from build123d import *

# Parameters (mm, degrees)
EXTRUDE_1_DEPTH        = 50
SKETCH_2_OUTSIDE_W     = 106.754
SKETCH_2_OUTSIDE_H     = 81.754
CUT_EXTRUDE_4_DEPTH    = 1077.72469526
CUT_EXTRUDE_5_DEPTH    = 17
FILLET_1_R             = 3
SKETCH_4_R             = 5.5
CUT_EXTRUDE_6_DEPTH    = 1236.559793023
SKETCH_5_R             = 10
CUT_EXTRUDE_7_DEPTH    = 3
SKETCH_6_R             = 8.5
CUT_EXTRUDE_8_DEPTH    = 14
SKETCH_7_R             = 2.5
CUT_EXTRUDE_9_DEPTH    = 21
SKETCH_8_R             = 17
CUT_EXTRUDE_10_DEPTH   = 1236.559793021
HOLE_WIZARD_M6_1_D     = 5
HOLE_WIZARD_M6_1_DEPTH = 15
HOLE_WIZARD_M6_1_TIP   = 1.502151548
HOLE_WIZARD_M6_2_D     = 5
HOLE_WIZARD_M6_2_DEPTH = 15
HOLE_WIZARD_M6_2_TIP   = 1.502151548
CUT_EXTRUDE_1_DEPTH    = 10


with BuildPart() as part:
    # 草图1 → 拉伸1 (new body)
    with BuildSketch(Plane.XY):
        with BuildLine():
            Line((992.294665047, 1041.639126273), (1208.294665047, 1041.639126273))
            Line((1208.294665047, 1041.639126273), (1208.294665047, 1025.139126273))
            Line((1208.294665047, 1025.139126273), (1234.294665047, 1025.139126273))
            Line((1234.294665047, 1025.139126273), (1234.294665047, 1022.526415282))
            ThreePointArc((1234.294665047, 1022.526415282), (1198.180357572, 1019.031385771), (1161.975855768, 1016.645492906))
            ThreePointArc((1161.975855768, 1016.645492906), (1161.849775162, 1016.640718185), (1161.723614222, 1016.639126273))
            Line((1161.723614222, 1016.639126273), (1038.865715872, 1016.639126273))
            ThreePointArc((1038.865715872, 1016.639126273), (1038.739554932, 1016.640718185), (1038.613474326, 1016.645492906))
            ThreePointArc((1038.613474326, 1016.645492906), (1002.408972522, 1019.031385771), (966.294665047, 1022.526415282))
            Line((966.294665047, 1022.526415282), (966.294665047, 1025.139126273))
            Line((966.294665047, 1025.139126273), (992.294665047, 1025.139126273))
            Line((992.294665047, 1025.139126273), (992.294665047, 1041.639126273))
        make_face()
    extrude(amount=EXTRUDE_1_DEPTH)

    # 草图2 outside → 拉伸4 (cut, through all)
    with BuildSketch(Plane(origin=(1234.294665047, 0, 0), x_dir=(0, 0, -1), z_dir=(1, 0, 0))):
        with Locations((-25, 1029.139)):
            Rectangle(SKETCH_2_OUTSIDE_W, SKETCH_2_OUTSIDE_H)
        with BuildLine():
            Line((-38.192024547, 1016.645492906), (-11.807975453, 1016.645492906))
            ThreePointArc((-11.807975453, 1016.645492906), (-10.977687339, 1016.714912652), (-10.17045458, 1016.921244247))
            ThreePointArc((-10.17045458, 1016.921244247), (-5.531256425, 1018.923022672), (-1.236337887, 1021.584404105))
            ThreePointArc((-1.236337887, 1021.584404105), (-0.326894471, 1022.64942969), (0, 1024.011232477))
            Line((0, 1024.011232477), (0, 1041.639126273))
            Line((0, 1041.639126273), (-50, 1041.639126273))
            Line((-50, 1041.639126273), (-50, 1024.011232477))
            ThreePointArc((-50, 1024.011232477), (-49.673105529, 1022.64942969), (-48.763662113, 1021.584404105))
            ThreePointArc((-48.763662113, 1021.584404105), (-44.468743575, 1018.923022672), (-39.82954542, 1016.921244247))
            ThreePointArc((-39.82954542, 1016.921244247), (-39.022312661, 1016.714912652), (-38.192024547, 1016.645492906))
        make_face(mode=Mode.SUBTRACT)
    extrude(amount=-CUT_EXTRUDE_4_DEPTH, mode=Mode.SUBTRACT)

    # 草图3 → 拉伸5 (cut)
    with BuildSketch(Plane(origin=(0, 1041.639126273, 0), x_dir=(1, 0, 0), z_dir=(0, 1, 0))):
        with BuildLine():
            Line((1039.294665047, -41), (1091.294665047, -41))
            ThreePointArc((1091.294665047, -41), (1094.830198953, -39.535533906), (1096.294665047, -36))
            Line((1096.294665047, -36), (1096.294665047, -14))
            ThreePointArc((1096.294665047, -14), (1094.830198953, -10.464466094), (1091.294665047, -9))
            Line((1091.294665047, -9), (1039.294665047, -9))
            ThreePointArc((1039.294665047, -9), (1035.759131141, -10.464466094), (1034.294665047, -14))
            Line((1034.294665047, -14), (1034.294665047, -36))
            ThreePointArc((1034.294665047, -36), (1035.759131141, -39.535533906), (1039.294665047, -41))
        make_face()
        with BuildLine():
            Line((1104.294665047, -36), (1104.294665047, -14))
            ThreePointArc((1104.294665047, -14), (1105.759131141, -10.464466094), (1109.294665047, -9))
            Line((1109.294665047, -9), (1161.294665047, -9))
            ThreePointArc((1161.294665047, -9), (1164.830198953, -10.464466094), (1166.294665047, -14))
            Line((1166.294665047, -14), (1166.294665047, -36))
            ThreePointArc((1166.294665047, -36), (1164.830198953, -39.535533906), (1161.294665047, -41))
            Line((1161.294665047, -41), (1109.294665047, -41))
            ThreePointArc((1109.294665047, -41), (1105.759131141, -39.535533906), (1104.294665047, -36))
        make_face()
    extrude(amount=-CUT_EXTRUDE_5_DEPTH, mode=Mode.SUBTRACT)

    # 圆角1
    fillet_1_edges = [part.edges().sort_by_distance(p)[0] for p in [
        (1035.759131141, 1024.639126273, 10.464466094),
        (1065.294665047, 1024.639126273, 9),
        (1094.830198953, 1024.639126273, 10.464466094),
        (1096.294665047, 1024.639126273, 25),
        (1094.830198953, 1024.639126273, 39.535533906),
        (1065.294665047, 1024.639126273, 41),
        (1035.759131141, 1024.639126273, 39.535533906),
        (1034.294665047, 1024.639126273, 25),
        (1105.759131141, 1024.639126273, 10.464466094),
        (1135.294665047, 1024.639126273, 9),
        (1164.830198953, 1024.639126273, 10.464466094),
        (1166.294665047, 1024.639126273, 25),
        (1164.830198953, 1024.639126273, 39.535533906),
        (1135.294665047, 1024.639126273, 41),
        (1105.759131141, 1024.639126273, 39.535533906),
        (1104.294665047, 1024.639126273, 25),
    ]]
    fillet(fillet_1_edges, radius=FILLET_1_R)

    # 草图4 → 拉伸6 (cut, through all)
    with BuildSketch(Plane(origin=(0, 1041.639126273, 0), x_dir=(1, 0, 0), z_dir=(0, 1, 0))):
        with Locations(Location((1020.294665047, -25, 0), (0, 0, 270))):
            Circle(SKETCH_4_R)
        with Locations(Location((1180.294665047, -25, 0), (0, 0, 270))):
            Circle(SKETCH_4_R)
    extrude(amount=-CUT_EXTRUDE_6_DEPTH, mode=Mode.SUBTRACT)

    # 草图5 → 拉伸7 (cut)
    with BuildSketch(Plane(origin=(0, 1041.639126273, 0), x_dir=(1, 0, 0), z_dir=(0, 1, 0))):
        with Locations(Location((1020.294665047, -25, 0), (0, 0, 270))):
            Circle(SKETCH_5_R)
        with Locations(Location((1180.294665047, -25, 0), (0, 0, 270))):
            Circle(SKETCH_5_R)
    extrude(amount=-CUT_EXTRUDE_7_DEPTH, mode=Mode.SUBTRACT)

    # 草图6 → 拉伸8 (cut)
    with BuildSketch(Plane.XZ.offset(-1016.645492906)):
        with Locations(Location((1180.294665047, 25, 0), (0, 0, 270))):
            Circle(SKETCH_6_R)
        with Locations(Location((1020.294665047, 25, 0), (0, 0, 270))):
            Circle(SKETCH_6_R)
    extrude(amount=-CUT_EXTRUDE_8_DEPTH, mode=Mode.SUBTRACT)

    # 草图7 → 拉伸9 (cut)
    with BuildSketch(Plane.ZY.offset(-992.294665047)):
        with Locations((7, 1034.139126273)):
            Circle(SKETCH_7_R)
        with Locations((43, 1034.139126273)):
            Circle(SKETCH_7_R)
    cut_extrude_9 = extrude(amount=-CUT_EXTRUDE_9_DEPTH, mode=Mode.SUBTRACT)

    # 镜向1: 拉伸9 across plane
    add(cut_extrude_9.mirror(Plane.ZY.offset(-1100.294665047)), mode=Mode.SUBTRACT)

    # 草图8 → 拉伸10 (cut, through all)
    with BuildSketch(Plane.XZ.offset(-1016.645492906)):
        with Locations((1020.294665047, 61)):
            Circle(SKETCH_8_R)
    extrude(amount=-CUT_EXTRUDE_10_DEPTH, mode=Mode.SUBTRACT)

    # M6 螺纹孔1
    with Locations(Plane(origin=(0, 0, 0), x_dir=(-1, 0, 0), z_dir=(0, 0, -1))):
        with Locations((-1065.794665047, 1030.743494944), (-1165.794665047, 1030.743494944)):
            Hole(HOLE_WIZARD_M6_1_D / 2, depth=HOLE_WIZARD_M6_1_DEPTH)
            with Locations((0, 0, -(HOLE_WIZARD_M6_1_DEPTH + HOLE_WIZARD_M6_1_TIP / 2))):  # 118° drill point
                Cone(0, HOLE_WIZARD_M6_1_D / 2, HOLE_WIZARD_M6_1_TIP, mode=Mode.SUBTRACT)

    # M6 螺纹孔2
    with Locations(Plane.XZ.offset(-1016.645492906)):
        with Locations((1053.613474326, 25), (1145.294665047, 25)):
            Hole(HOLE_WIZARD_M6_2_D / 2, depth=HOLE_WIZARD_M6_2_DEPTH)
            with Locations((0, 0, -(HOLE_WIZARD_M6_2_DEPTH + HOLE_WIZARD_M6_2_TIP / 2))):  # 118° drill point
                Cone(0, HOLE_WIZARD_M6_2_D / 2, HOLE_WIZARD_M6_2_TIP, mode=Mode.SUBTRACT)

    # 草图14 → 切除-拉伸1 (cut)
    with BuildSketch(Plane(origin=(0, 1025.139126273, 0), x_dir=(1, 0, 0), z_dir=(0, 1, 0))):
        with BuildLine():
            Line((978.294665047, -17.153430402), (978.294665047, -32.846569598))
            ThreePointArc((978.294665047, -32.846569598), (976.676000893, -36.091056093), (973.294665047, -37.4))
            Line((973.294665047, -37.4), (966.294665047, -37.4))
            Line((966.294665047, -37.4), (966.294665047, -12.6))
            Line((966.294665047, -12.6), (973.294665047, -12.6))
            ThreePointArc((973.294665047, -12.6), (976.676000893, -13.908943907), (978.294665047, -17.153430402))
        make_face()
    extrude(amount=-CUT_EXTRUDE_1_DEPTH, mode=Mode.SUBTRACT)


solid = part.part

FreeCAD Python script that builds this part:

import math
import FreeCAD as App
import Part
import Sketcher

V = App.Vector
Q = App.Units.Quantity


def edges_at(feature, points):
    """Names of the edges that pass closest to the given points."""
    edges = feature.Shape.Edges
    near = lambda p: min(range(len(edges)), key=lambda i: edges[i].distToShape(Part.Vertex(*p))[0])
    return sorted({f"Edge{near(p) + 1}" for p in points})

doc = App.newDocument("Part")
body = doc.addObject("PartDesign::Body", "Body")

sketch1 = body.newObject("Sketcher::SketchObject", "Sketch")
sketch1.AttachmentSupport = (doc.getObject("XY_Plane"), [""])
sketch1.MapMode = "FlatFace"
sketch1.addGeometry(Part.LineSegment(V(1208.29, 1041.64, 0), V(992.29, 1041.64, 0)), False)
sketch1.addGeometry(Part.LineSegment(V(992.29, 1041.64, 0), V(992.29, 1025.14, 0)), False)
sketch1.addGeometry(Part.LineSegment(V(992.29, 1025.14, 0), V(966.29, 1025.14, 0)), False)
sketch1.addGeometry(Part.LineSegment(V(966.29, 1025.14, 0), V(966.29, 1022.53, 0)), False)
sketch1.addGeometry(Part.ArcOfCircle(Part.Circle(V(1098.29, 2198.16, 0), V(0, 0, 1), 1183.02), math.radians(-96.41), math.radians(-92.89)), False)
sketch1.addGeometry(Part.ArcOfCircle(Part.Circle(V(1038.87, 1021.64, 0), V(0, 0, 1), 5), math.radians(-92.89), math.radians(-90)), False)
sketch1.addGeometry(Part.LineSegment(V(1038.87, 1016.64, 0), V(1161.72, 1016.64, 0)), False)
sketch1.addGeometry(Part.ArcOfCircle(Part.Circle(V(1161.72, 1021.64, 0), V(0, 0, 1), 5), math.radians(-90), math.radians(-87.11)), False)
sketch1.addGeometry(Part.ArcOfCircle(Part.Circle(V(1102.29, 2198.16, 0), V(0, 0, 1), 1183.02), math.radians(-87.11), math.radians(-83.59)), False)
sketch1.addGeometry(Part.LineSegment(V(1234.29, 1022.53, 0), V(1234.29, 1025.14, 0)), False)
sketch1.addGeometry(Part.LineSegment(V(1234.29, 1025.14, 0), V(1208.29, 1025.14, 0)), False)
sketch1.addGeometry(Part.LineSegment(V(1208.29, 1025.14, 0), V(1208.29, 1041.64, 0)), False)
sketch1.addConstraint(Sketcher.Constraint("Coincident", 0, 2, 1, 1))
sketch1.addConstraint(Sketcher.Constraint("Coincident", 1, 2, 2, 1))
sketch1.addConstraint(Sketcher.Constraint("Coincident", 2, 2, 3, 1))
sketch1.addConstraint(Sketcher.Constraint("Coincident", 3, 2, 4, 1))
sketch1.addConstraint(Sketcher.Constraint("Tangent", 4, 2, 5, 1))
sketch1.addConstraint(Sketcher.Constraint("Tangent", 5, 2, 6, 1))
sketch1.addConstraint(Sketcher.Constraint("Tangent", 6, 2, 7, 1))
sketch1.addConstraint(Sketcher.Constraint("Tangent", 7, 2, 8, 1))
sketch1.addConstraint(Sketcher.Constraint("Coincident", 8, 2, 9, 1))
sketch1.addConstraint(Sketcher.Constraint("Coincident", 9, 2, 10, 1))
sketch1.addConstraint(Sketcher.Constraint("Coincident", 10, 2, 11, 1))
sketch1.addConstraint(Sketcher.Constraint("Coincident", 11, 2, 0, 1))
sketch1.addConstraint(Sketcher.Constraint("Horizontal", 0))
sketch1.addConstraint(Sketcher.Constraint("Vertical", 1))
sketch1.addConstraint(Sketcher.Constraint("Horizontal", 2))
sketch1.addConstraint(Sketcher.Constraint("Vertical", 3))
sketch1.addConstraint(Sketcher.Constraint("Horizontal", 6))
sketch1.addConstraint(Sketcher.Constraint("Vertical", 9))
sketch1.addConstraint(Sketcher.Constraint("Horizontal", 10))
sketch1.addConstraint(Sketcher.Constraint("Vertical", 11))
sketch1.addConstraint(Sketcher.Constraint("Equal", 5, 7))
sketch1.addConstraint(Sketcher.Constraint("Equal", 4, 8))
sketch1.addConstraint(Sketcher.Constraint("Horizontal", 4, 3, 8, 3))
sketch1.addConstraint(Sketcher.Constraint("Horizontal", 2, 2, 9, 2))
sketch1.addConstraint(Sketcher.Constraint("Equal", 2, 10))
sketch1.addConstraint(Sketcher.Constraint("Equal", 3, 9))
sketch1.addConstraint(Sketcher.Constraint("Radius", 5, Q("5.000001 mm")))
sketch1.addConstraint(Sketcher.Constraint("DistanceX", 0, 2, 0, 1, Q("216 mm")))
sketch1.addConstraint(Sketcher.Constraint("DistanceX", 2, 2, 2, 1, Q("26 mm")))
sketch1.addConstraint(Sketcher.Constraint("DistanceY", 1, 2, 1, 1, Q("16.5 mm")))
sketch1.addConstraint(Sketcher.Constraint("DistanceX", 4, 3, 8, 3, Q("4 mm")))
sketch1.addConstraint(Sketcher.Constraint("DistanceY", 5, 3, 0, 2, Q("19.999999 mm")))
sketch1.addConstraint(Sketcher.Constraint("DistanceX", 6, 1, 6, 2, Q("122.857898 mm")))
sketch1.addConstraint(Sketcher.Constraint("Radius", 4, Q("1183.016666 mm")))
sketch1.addConstraint(Sketcher.Constraint("DistanceX", -1, 1, 4, 3, Q("1098.294665 mm")))
sketch1.addConstraint(Sketcher.Constraint("DistanceY", -1, 1, 4, 3, Q("2198.155793 mm")))
pad1 = body.newObject("PartDesign::Pad", "Pad")
pad1.Profile = sketch1
pad1.Length = 50

sketch2 = body.newObject("Sketcher::SketchObject", "Sketch001")
sketch2.AttachmentSupport = (doc.getObject("YZ_Plane"), [""])
sketch2.MapMode = "FlatFace"
sketch2.AttachmentOffset = App.Placement(V(0, 0, 1234.294665), App.Rotation())
sketch2.addGeometry(Part.LineSegment(V(1070, 78.4, 0), V(988.3, 78.4, 0)), False)
sketch2.addGeometry(Part.LineSegment(V(988.3, 78.4, 0), V(988.3, -28.4, 0)), False)
sketch2.addGeometry(Part.LineSegment(V(988.3, -28.4, 0), V(1070, -28.4, 0)), False)
sketch2.addGeometry(Part.LineSegment(V(1070, -28.4, 0), V(1070, 78.4, 0)), False)
sketch2.addGeometry(Part.LineSegment(V(1016.6, 11.8, 0), V(1016.6, 38.2, 0)), False)
sketch2.addGeometry(Part.ArcOfCircle(Part.Circle(V(1021.6, 38.2, 0), V(0, 0, 1), 5), math.radians(160.88), math.radians(180)), False)
sketch2.addGeometry(Part.ArcOfCircle(Part.Circle(V(1049.3, 28.6, 0), V(0, 0, 1), 34.3), math.radians(143.99), math.radians(160.88)), False)
sketch2.addGeometry(Part.ArcOfCircle(Part.Circle(V(1024, 47, 0), V(0, 0, 1), 3), math.radians(90), math.radians(144)), False)
sketch2.addGeometry(Part.LineSegment(V(1024, 50, 0), V(1041.6, 50, 0)), False)
sketch2.addGeometry(Part.LineSegment(V(1041.6, 50, 0), V(1041.6, 0, 0)), False)
sketch2.addGeometry(Part.LineSegment(V(1041.6, 0, 0), V(1024, 0, 0)), False)
sketch2.addGeometry(Part.ArcOfCircle(Part.Circle(V(1024, 3, 0), V(0, 0, 1), 3), math.radians(-144), math.radians(-90)), False)
sketch2.addGeometry(Part.ArcOfCircle(Part.Circle(V(1049.3, 21.4, 0), V(0, 0, 1), 34.3), math.radians(-160.88), math.radians(-143.99)), False)
sketch2.addGeometry(Part.ArcOfCircle(Part.Circle(V(1021.6, 11.8, 0), V(0, 0, 1), 5), math.radians(-180), math.radians(-160.88)), False)
sketch2.addConstraint(Sketcher.Constraint("Coincident", 0, 2, 1, 1))
sketch2.addConstraint(Sketcher.Constraint("Coincident", 1, 2, 2, 1))
sketch2.addConstraint(Sketcher.Constraint("Coincident", 2, 2, 3, 1))
sketch2.addConstraint(Sketcher.Constraint("Coincident", 3, 2, 0, 1))
sketch2.addConstraint(Sketcher.Constraint("Tangent", 4, 2, 5, 2))
sketch2.addConstraint(Sketcher.Constraint("Tangent", 5, 1, 6, 2))
sketch2.addConstraint(Sketcher.Constraint("Tangent", 6, 1, 7, 2))
sketch2.addConstraint(Sketcher.Constraint("Tangent", 7, 1, 8, 1))
sketch2.addConstraint(Sketcher.Constraint("Coincident", 8, 2, 9, 1))
sketch2.addConstraint(Sketcher.Constraint("Coincident", 9, 2, 10, 1))
sketch2.addConstraint(Sketcher.Constraint("Tangent", 10, 2, 11, 2))
sketch2.addConstraint(Sketcher.Constraint("Tangent", 11, 1, 12, 2))
sketch2.addConstraint(Sketcher.Constraint("Tangent", 12, 1, 13, 2))
sketch2.addConstraint(Sketcher.Constraint("Tangent", 13, 1, 4, 1))
sketch2.addConstraint(Sketcher.Constraint("Horizontal", 0))
sketch2.addConstraint(Sketcher.Constraint("Vertical", 1))
sketch2.addConstraint(Sketcher.Constraint("Horizontal", 2))
sketch2.addConstraint(Sketcher.Constraint("Vertical", 3))
sketch2.addConstraint(Sketcher.Constraint("Vertical", 4))
sketch2.addConstraint(Sketcher.Constraint("Horizontal", 8))
sketch2.addConstraint(Sketcher.Constraint("Vertical", 9))
sketch2.addConstraint(Sketcher.Constraint("Horizontal", 10))
sketch2.addConstraint(Sketcher.Constraint("Equal", 7, 11))
sketch2.addConstraint(Sketcher.Constraint("Equal", 6, 12))
sketch2.addConstraint(Sketcher.Constraint("Equal", 5, 13))
sketch2.addConstraint(Sketcher.Constraint("PointOnObject", 9, 2, -1))
sketch2.addConstraint(Sketcher.Constraint("Vertical", 7, 3, 11, 3))
sketch2.addConstraint(Sketcher.Constraint("Vertical", 6, 3, 12, 3))
sketch2.addConstraint(Sketcher.Constraint("Radius", 5, Q("5 mm")))
sketch2.addConstraint(Sketcher.Constraint("Radius", 7, Q("3 mm")))
sketch2.addConstraint(Sketcher.Constraint("DistanceY", 9, 2, 9, 1, Q("50 mm")))
sketch2.addConstraint(Sketcher.Constraint("DistanceX", 0, 2, 0, 1, Q("81.754 mm")))
sketch2.addConstraint(Sketcher.Constraint("DistanceY", 1, 2, 1, 1, Q("106.754 mm")))
sketch2.addConstraint(Sketcher.Constraint("Radius", 6, Q("34.311418 mm")))
sketch2.addConstraint(Sketcher.Constraint("DistanceX", -1, 1, 0, 2, Q("988.262 mm")))
sketch2.addConstraint(Sketcher.Constraint("DistanceY", -1, 1, 0, 2, Q("78.377 mm")))
sketch2.addConstraint(Sketcher.Constraint("DistanceY", 4, 1, 4, 2, Q("26.384049 mm")))
sketch2.addConstraint(Sketcher.Constraint("DistanceX", 8, 1, 8, 2, Q("17.627894 mm")))
sketch2.addConstraint(Sketcher.Constraint("DistanceX", -1, 1, 6, 3, Q("1049.340378 mm")))
sketch2.addConstraint(Sketcher.Constraint("DistanceY", 6, 3, 5, 3, Q("9.599612 mm")))
pocket1 = body.newObject("PartDesign::Pocket", "Pocket")
pocket1.Profile = sketch2
pocket1.Type = "ThroughAll"

sketch3 = body.newObject("Sketcher::SketchObject", "Sketch002")
sketch3.AttachmentSupport = (doc.getObject("XZ_Plane"), [""])
sketch3.MapMode = "FlatFace"
sketch3.AttachmentOffset = App.Placement(V(0, 0, -1041.639126), App.Rotation())
sketch3.addGeometry(Part.LineSegment(V(1039, 41, 0), V(1091, 41, 0)), False)
sketch3.addGeometry(Part.ArcOfCircle(Part.Circle(V(1091, 36, 0), V(0, 0, 1), 5), math.radians(0), math.radians(90)), False)
sketch3.addGeometry(Part.LineSegment(V(1096, 36, 0), V(1096, 14, 0)), False)
sketch3.addGeometry(Part.ArcOfCircle(Part.Circle(V(1091, 14, 0), V(0, 0, 1), 5), math.radians(-90), math.radians(0)), False)
sketch3.addGeometry(Part.LineSegment(V(1091, 9, 0), V(1039, 9, 0)), False)
sketch3.addGeometry(Part.ArcOfCircle(Part.Circle(V(1039, 14, 0), V(0, 0, 1), 5), math.radians(180), math.radians(270)), False)
sketch3.addGeometry(Part.LineSegment(V(1034, 14, 0), V(1034, 36, 0)), False)
sketch3.addGeometry(Part.ArcOfCircle(Part.Circle(V(1039, 36, 0), V(0, 0, 1), 5), math.radians(90), math.radians(180)), False)
sketch3.addGeometry(Part.LineSegment(V(1104, 14, 0), V(1104, 36, 0)), False)
sketch3.addGeometry(Part.ArcOfCircle(Part.Circle(V(1109, 36, 0), V(0, 0, 1), 5), math.radians(90), math.radians(180)), False)
sketch3.addGeometry(Part.LineSegment(V(1109, 41, 0), V(1161, 41, 0)), False)
sketch3.addGeometry(Part.ArcOfCircle(Part.Circle(V(1161, 36, 0), V(0, 0, 1), 5), math.radians(0), math.radians(90)), False)
sketch3.addGeometry(Part.LineSegment(V(1166, 36, 0), V(1166, 14, 0)), False)
sketch3.addGeometry(Part.ArcOfCircle(Part.Circle(V(1161, 14, 0), V(0, 0, 1), 5), math.radians(-90), math.radians(0)), False)
sketch3.addGeometry(Part.LineSegment(V(1161, 9, 0), V(1109, 9, 0)), False)
sketch3.addGeometry(Part.ArcOfCircle(Part.Circle(V(1109, 14, 0), V(0, 0, 1), 5), math.radians(180), math.radians(270)), False)
sketch3.addConstraint(Sketcher.Constraint("Tangent", 0, 2, 1, 2))
sketch3.addConstraint(Sketcher.Constraint("Tangent", 1, 1, 2, 1))
sketch3.addConstraint(Sketcher.Constraint("Tangent", 2, 2, 3, 2))
sketch3.addConstraint(Sketcher.Constraint("Tangent", 3, 1, 4, 1))
sketch3.addConstraint(Sketcher.Constraint("Tangent", 4, 2, 5, 2))
sketch3.addConstraint(Sketcher.Constraint("Tangent", 5, 1, 6, 1))
sketch3.addConstraint(Sketcher.Constraint("Tangent", 6, 2, 7, 2))
sketch3.addConstraint(Sketcher.Constraint("Tangent", 7, 1, 0, 1))
sketch3.addConstraint(Sketcher.Constraint("Tangent", 8, 2, 9, 2))
sketch3.addConstraint(Sketcher.Constraint("Tangent", 9, 1, 10, 1))
sketch3.addConstraint(Sketcher.Constraint("Tangent", 10, 2, 11, 2))
sketch3.addConstraint(Sketcher.Constraint("Tangent", 11, 1, 12, 1))
sketch3.addConstraint(Sketcher.Constraint("Tangent", 12, 2, 13, 2))
sketch3.addConstraint(Sketcher.Constraint("Tangent", 13, 1, 14, 1))
sketch3.addConstraint(Sketcher.Constraint("Tangent", 14, 2, 15, 2))
sketch3.addConstraint(Sketcher.Constraint("Tangent", 15, 1, 8, 1))
sketch3.addConstraint(Sketcher.Constraint("Horizontal", 0))
sketch3.addConstraint(Sketcher.Constraint("Vertical", 2))
sketch3.addConstraint(Sketcher.Constraint("Horizontal", 4))
sketch3.addConstraint(Sketcher.Constraint("Vertical", 6))
sketch3.addConstraint(Sketcher.Constraint("Vertical", 8))
sketch3.addConstraint(Sketcher.Constraint("Horizontal", 10))
sketch3.addConstraint(Sketcher.Constraint("Vertical", 12))
sketch3.addConstraint(Sketcher.Constraint("Horizontal", 14))
sketch3.addConstraint(Sketcher.Constraint("Equal", 1, 3))
sketch3.addConstraint(Sketcher.Constraint("Equal", 3, 5))
sketch3.addConstraint(Sketcher.Constraint("Equal", 5, 7))
sketch3.addConstraint(Sketcher.Constraint("Equal", 7, 9))
sketch3.addConstraint(Sketcher.Constraint("Equal", 9, 11))
sketch3.addConstraint(Sketcher.Constraint("Equal", 11, 13))
sketch3.addConstraint(Sketcher.Constraint("Equal", 13, 15))
sketch3.addConstraint(Sketcher.Constraint("Horizontal", 7, 3, 9, 3))
sketch3.addConstraint(Sketcher.Constraint("Horizontal", 5, 3, 13, 3))
sketch3.addConstraint(Sketcher.Constraint("Equal", 4, 10))
sketch3.addConstraint(Sketcher.Constraint("Radius", 1, Q("5 mm")))
sketch3.addConstraint(Sketcher.Constraint("DistanceX", 0, 1, 0, 2, Q("52 mm")))
sketch3.addConstraint(Sketcher.Constraint("DistanceY", 2, 2, 2, 1, Q("22 mm")))
sketch3.addConstraint(Sketcher.Constraint("DistanceY", -1, 1, 1, 3, Q("36 mm")))
sketch3.addConstraint(Sketcher.Constraint("DistanceX", 1, 3, 9, 3, Q("18 mm")))
sketch3.addConstraint(Sketcher.Constraint("DistanceX", -1, 1, 1, 3, Q("1091.294665 mm")))
pocket2 = body.newObject("PartDesign::Pocket", "Pocket001")
pocket2.Profile = sketch3
pocket2.Length = 17
pocket2.Reversed = True
doc.recompute()

fillet = body.newObject("PartDesign::Fillet", "Fillet")
fillet.Base = (pocket2, edges_at(pocket2, [
    (1035.759, 1024.639, 10.464),
    (1065.295, 1024.639, 9),
    (1094.83, 1024.639, 10.464),
    (1096.295, 1024.639, 25),
    (1094.83, 1024.639, 39.536),
    (1065.295, 1024.639, 41),
    (1035.759, 1024.639, 39.536),
    (1034.295, 1024.639, 25),
    (1105.759, 1024.639, 10.464),
    (1135.295, 1024.639, 9),
    (1164.83, 1024.639, 10.464),
    (1166.295, 1024.639, 25),
    (1164.83, 1024.639, 39.536),
    (1135.295, 1024.639, 41),
    (1105.759, 1024.639, 39.536),
    (1104.295, 1024.639, 25),
]))
fillet.Radius = 3

sketch4 = body.newObject("Sketcher::SketchObject", "Sketch003")
sketch4.AttachmentSupport = (doc.getObject("XZ_Plane"), [""])
sketch4.MapMode = "FlatFace"
sketch4.AttachmentOffset = App.Placement(V(0, 0, -1041.639126), App.Rotation())
sketch4.addGeometry(Part.Circle(V(1020, 25, 0), V(0, 0, 1), 6), False)
sketch4.addGeometry(Part.Circle(V(1180, 25, 0), V(0, 0, 1), 6), False)
sketch4.addConstraint(Sketcher.Constraint("Equal", 0, 1))
sketch4.addConstraint(Sketcher.Constraint("Horizontal", 0, 3, 1, 3))
sketch4.addConstraint(Sketcher.Constraint("Diameter", 0, Q("11 mm")))
sketch4.addConstraint(Sketcher.Constraint("DistanceY", -1, 1, 0, 3, Q("25 mm")))
sketch4.addConstraint(Sketcher.Constraint("DistanceX", 0, 3, 1, 3, Q("160 mm")))
sketch4.addConstraint(Sketcher.Constraint("DistanceX", -1, 1, 0, 3, Q("1020.294665 mm")))
pocket3 = body.newObject("PartDesign::Pocket", "Pocket002")
pocket3.Profile = sketch4
pocket3.Type = "ThroughAll"
pocket3.Reversed = True

sketch5 = body.newObject("Sketcher::SketchObject", "Sketch004")
sketch5.AttachmentSupport = (doc.getObject("XZ_Plane"), [""])
sketch5.MapMode = "FlatFace"
sketch5.AttachmentOffset = App.Placement(V(0, 0, -1041.639126), App.Rotation())
sketch5.addGeometry(Part.Circle(V(1020, 25, 0), V(0, 0, 1), 10), False)
sketch5.addGeometry(Part.Circle(V(1180, 25, 0), V(0, 0, 1), 10), False)
sketch5.addConstraint(Sketcher.Constraint("Equal", 0, 1))
sketch5.addConstraint(Sketcher.Constraint("Horizontal", 0, 3, 1, 3))
sketch5.addConstraint(Sketcher.Constraint("Diameter", 0, Q("20 mm")))
sketch5.addConstraint(Sketcher.Constraint("DistanceY", -1, 1, 0, 3, Q("25 mm")))
sketch5.addConstraint(Sketcher.Constraint("DistanceX", 0, 3, 1, 3, Q("160 mm")))
sketch5.addConstraint(Sketcher.Constraint("DistanceX", -1, 1, 0, 3, Q("1020.294665 mm")))
pocket4 = body.newObject("PartDesign::Pocket", "Pocket003")
pocket4.Profile = sketch5
pocket4.Length = 3
pocket4.Reversed = True

sketch6 = body.newObject("Sketcher::SketchObject", "Sketch005")
sketch6.AttachmentSupport = (doc.getObject("XZ_Plane"), [""])
sketch6.MapMode = "FlatFace"
sketch6.AttachmentOffset = App.Placement(V(0, 0, -1016.645493), App.Rotation())
sketch6.addGeometry(Part.Circle(V(1180, 25, 0), V(0, 0, 1), 8), False)
sketch6.addGeometry(Part.Circle(V(1020, 25, 0), V(0, 0, 1), 8), False)
sketch6.addConstraint(Sketcher.Constraint("Equal", 0, 1))
sketch6.addConstraint(Sketcher.Constraint("Horizontal", 0, 3, 1, 3))
sketch6.addConstraint(Sketcher.Constraint("Diameter", 0, Q("17 mm")))
sketch6.addConstraint(Sketcher.Constraint("DistanceY", -1, 1, 0, 3, Q("25 mm")))
sketch6.addConstraint(Sketcher.Constraint("DistanceX", 1, 3, 0, 3, Q("160 mm")))
sketch6.addConstraint(Sketcher.Constraint("DistanceX", -1, 1, 0, 3, Q("1180.294665 mm")))
pocket5 = body.newObject("PartDesign::Pocket", "Pocket004")
pocket5.Profile = sketch6
pocket5.Length = 14

sketch7 = body.newObject("Sketcher::SketchObject", "Sketch006")
sketch7.AttachmentSupport = (doc.getObject("YZ_Plane"), [""])
sketch7.MapMode = "FlatFace"
sketch7.AttachmentOffset = App.Placement(V(0, 0, 992.294665), App.Rotation())
sketch7.addGeometry(Part.Circle(V(1034.1, 7, 0), V(0, 0, 1), 2.5), False)
sketch7.addGeometry(Part.Circle(V(1034.1, 43, 0), V(0, 0, 1), 2.5), False)
sketch7.addConstraint(Sketcher.Constraint("Equal", 0, 1))
sketch7.addConstraint(Sketcher.Constraint("Vertical", 0, 3, 1, 3))
sketch7.addConstraint(Sketcher.Constraint("Diameter", 0, Q("5 mm")))
sketch7.addConstraint(Sketcher.Constraint("DistanceY", -1, 1, 0, 3, Q("7 mm")))
sketch7.addConstraint(Sketcher.Constraint("DistanceY", -1, 1, 1, 3, Q("43 mm")))
sketch7.addConstraint(Sketcher.Constraint("DistanceX", -1, 1, 0, 3, Q("1034.139126 mm")))
pocket6 = body.newObject("PartDesign::Pocket", "Pocket005")
pocket6.Profile = sketch7
pocket6.Length = 21
pocket6.Reversed = True
doc.recompute()

datumplane = body.newObject("PartDesign::Plane", "DatumPlane")
datumplane.AttachmentSupport = (doc.getObject("YZ_Plane"), [""])
datumplane.MapMode = "FlatFace"
datumplane.AttachmentOffset = App.Placement(V(0, 0, 1100.294665), App.Rotation())
mirrored = body.newObject("PartDesign::Mirrored", "Mirrored")
mirrored.Originals = [pocket6]
mirrored.MirrorPlane = (datumplane, [""])
body.Tip = mirrored

sketch8 = body.newObject("Sketcher::SketchObject", "Sketch007")
sketch8.AttachmentSupport = (doc.getObject("XZ_Plane"), [""])
sketch8.MapMode = "FlatFace"
sketch8.AttachmentOffset = App.Placement(V(0, 0, -1016.645493), App.Rotation())
sketch8.addGeometry(Part.Circle(V(1020, 61, 0), V(0, 0, 1), 17), False)
sketch8.addConstraint(Sketcher.Constraint("Diameter", 0, Q("34 mm")))
sketch8.addConstraint(Sketcher.Constraint("DistanceY", -1, 1, 0, 3, Q("61 mm")))
sketch8.addConstraint(Sketcher.Constraint("DistanceX", -1, 1, 0, 3, Q("1020.294665 mm")))
pocket7 = body.newObject("PartDesign::Pocket", "Pocket006")
pocket7.Profile = sketch8
pocket7.Type = "ThroughAll"

sketch9 = body.newObject("Sketcher::SketchObject", "Sketch008")
sketch9.AttachmentSupport = (doc.getObject("XY_Plane"), [""])
sketch9.MapMode = "FlatFace"
sketch9.addGeometry(Part.Circle(V(1065.8, 1030.7, 0), V(0, 0, 1), 2.5), False)
sketch9.addGeometry(Part.Circle(V(1165.8, 1030.7, 0), V(0, 0, 1), 2.5), False)
sketch9.addConstraint(Sketcher.Constraint("Equal", 0, 1))
sketch9.addConstraint(Sketcher.Constraint("Horizontal", 0, 3, 1, 3))
sketch9.addConstraint(Sketcher.Constraint("Diameter", 0, Q("5 mm")))
sketch9.addConstraint(Sketcher.Constraint("DistanceX", 0, 3, 1, 3, Q("100 mm")))
sketch9.addConstraint(Sketcher.Constraint("DistanceX", -1, 1, 0, 3, Q("1065.794665 mm")))
sketch9.addConstraint(Sketcher.Constraint("DistanceY", -1, 1, 0, 3, Q("1030.743495 mm")))
doc.recompute()
hole = body.newObject("PartDesign::Hole", "Hole")
hole.Profile = sketch9
hole.ThreadType = "None"
hole.Diameter = 5
hole.DepthType = "Dimension"
hole.Depth = 15
hole.DrillPoint = "Angled"
hole.DrillPointAngle = 118
hole.Reversed = True

sketch10 = body.newObject("Sketcher::SketchObject", "Sketch009")
sketch10.AttachmentSupport = (doc.getObject("XZ_Plane"), [""])
sketch10.MapMode = "FlatFace"
sketch10.AttachmentOffset = App.Placement(V(0, 0, -1016.645493), App.Rotation())
sketch10.addGeometry(Part.Circle(V(1053.6, 25, 0), V(0, 0, 1), 2.5), False)
sketch10.addGeometry(Part.Circle(V(1145.3, 25, 0), V(0, 0, 1), 2.5), False)
sketch10.addConstraint(Sketcher.Constraint("Equal", 0, 1))
sketch10.addConstraint(Sketcher.Constraint("Horizontal", 0, 3, 1, 3))
sketch10.addConstraint(Sketcher.Constraint("Diameter", 0, Q("5 mm")))
sketch10.addConstraint(Sketcher.Constraint("DistanceY", -1, 1, 0, 3, Q("25 mm")))
sketch10.addConstraint(Sketcher.Constraint("DistanceX", 0, 3, 1, 3, Q("91.681191 mm")))
sketch10.addConstraint(Sketcher.Constraint("DistanceX", -1, 1, 0, 3, Q("1053.613474 mm")))
doc.recompute()
hole2 = body.newObject("PartDesign::Hole", "Hole001")
hole2.Profile = sketch10
hole2.ThreadType = "None"
hole2.Diameter = 5
hole2.DepthType = "Dimension"
hole2.Depth = 15
hole2.DrillPoint = "Angled"
hole2.DrillPointAngle = 118

sketch11 = body.newObject("Sketcher::SketchObject", "Sketch010")
sketch11.AttachmentSupport = (doc.getObject("XZ_Plane"), [""])
sketch11.MapMode = "FlatFace"
sketch11.AttachmentOffset = App.Placement(V(0, 0, -1025.139126), App.Rotation())
sketch11.addGeometry(Part.LineSegment(V(978, 33, 0), V(978, 17, 0)), False)
sketch11.addGeometry(Part.ArcOfCircle(Part.Circle(V(973, 18, 0), V(0, 0, 1), 5), math.radians(-90), math.radians(-5)), False)
sketch11.addGeometry(Part.LineSegment(V(973, 13, 0), V(966, 13, 0)), False)
sketch11.addGeometry(Part.LineSegment(V(966, 13, 0), V(966, 37, 0)), False)
sketch11.addGeometry(Part.LineSegment(V(966, 37, 0), V(973, 37, 0)), False)
sketch11.addGeometry(Part.ArcOfCircle(Part.Circle(V(973, 32, 0), V(0, 0, 1), 5), math.radians(5), math.radians(90)), False)
sketch11.addConstraint(Sketcher.Constraint("Coincident", 0, 2, 1, 2))
sketch11.addConstraint(Sketcher.Constraint("Tangent", 1, 1, 2, 1))
sketch11.addConstraint(Sketcher.Constraint("Coincident", 2, 2, 3, 1))
sketch11.addConstraint(Sketcher.Constraint("Coincident", 3, 2, 4, 1))
sketch11.addConstraint(Sketcher.Constraint("Tangent", 4, 2, 5, 2))
sketch11.addConstraint(Sketcher.Constraint("Coincident", 5, 1, 0, 1))
sketch11.addConstraint(Sketcher.Constraint("Vertical", 0))
sketch11.addConstraint(Sketcher.Constraint("Horizontal", 2))
sketch11.addConstraint(Sketcher.Constraint("Vertical", 3))
sketch11.addConstraint(Sketcher.Constraint("Horizontal", 4))
sketch11.addConstraint(Sketcher.Constraint("Equal", 1, 5))
sketch11.addConstraint(Sketcher.Constraint("Vertical", 1, 3, 5, 3))
sketch11.addConstraint(Sketcher.Constraint("DistanceX", 2, 2, 2, 1, Q("7 mm")))
sketch11.addConstraint(Sketcher.Constraint("DistanceY", 3, 1, 3, 2, Q("24.8 mm")))
sketch11.addConstraint(Sketcher.Constraint("DistanceX", 1, 3, 0, 2, Q("5 mm")))
sketch11.addConstraint(Sketcher.Constraint("DistanceY", -1, 1, 1, 1, Q("12.6 mm")))
sketch11.addConstraint(Sketcher.Constraint("Radius", 1, Q("5.021898 mm")))
sketch11.addConstraint(Sketcher.Constraint("DistanceX", -1, 1, 1, 3, Q("973.294665 mm")))
pocket8 = body.newObject("PartDesign::Pocket", "Pocket007")
pocket8.Profile = sketch11
pocket8.Length = 10
pocket8.Reversed = True

doc.recompute()
